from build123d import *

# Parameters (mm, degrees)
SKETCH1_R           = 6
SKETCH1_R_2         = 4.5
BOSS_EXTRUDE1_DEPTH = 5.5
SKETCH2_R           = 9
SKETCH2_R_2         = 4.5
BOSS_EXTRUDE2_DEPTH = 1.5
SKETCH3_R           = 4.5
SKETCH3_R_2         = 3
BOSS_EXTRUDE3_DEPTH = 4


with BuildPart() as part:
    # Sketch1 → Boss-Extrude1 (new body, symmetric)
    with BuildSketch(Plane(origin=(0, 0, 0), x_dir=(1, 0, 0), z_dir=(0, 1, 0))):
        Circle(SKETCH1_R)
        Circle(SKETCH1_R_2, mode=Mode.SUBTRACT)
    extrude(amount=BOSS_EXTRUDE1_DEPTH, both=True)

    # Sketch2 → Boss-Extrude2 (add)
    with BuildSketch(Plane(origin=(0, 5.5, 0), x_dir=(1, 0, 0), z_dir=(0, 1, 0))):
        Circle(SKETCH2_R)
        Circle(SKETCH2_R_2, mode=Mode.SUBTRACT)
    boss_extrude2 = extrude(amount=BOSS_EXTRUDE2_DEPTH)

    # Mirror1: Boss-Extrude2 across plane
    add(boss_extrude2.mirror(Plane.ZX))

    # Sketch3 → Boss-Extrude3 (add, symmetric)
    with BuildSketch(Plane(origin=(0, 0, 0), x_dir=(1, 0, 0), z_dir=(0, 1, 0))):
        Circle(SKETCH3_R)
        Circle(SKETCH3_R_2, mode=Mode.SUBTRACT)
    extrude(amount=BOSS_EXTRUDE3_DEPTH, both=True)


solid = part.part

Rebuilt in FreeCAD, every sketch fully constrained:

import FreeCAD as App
import Part
import Sketcher
from FreeCAD import Vector
Q = App.Units.Quantity

doc = App.newDocument("Part")
body = doc.addObject("PartDesign::Body", "Body")

sketch1 = body.newObject("Sketcher::SketchObject", "Sketch")
sketch1.AttachmentSupport = (doc.getObject("XZ_Plane"), [""])
sketch1.MapMode = "FlatFace"
sketch1.addGeometry(Part.Circle(Vector(0, 0, 0), Vector(0, 0, 1), 6), False)
sketch1.addGeometry(Part.Circle(Vector(0, 0, 0), Vector(0, 0, 1), 4.5), False)
sketch1.addConstraint(Sketcher.Constraint("Coincident", 0, 3, -1, 1))
sketch1.addConstraint(Sketcher.Constraint("Coincident", 1, 3, -1, 1))
sketch1.addConstraint(Sketcher.Constraint("Diameter", 0, Q("12 mm")))
sketch1.addConstraint(Sketcher.Constraint("Diameter", 1, Q("9 mm")))
pad1 = body.newObject("PartDesign::Pad", "Pad")
pad1.Profile = sketch1
pad1.Length = 11
pad1.Midplane = True

sketch2 = body.newObject("Sketcher::SketchObject", "Sketch001")
sketch2.AttachmentSupport = (doc.getObject("XZ_Plane"), [""])
sketch2.MapMode = "FlatFace"
sketch2.AttachmentOffset = App.Placement(Vector(0, 0, -5.5), App.Rotation())
sketch2.addGeometry(Part.Circle(Vector(0, 0, 0), Vector(0, 0, 1), 9), False)
sketch2.addGeometry(Part.Circle(Vector(0, 0, 0), Vector(0, 0, 1), 4.5), False)
sketch2.addConstraint(Sketcher.Constraint("Coincident", 0, 3, -1, 1))
sketch2.addConstraint(Sketcher.Constraint("Coincident", 1, 3, -1, 1))
sketch2.addConstraint(Sketcher.Constraint("Diameter", 0, Q("18 mm")))
sketch2.addConstraint(Sketcher.Constraint("Diameter", 1, Q("9 mm")))
pad2 = body.newObject("PartDesign::Pad", "Pad001")
pad2.Profile = sketch2
pad2.Length = 1.5
pad2.Reversed = True
doc.recompute()

mirrored = body.newObject("PartDesign::Mirrored", "Mirrored")
mirrored.Originals = [pad2]
mirrored.MirrorPlane = (doc.getObject("XZ_Plane"), [""])
body.Tip = mirrored

sketch3 = body.newObject("Sketcher::SketchObject", "Sketch002")
sketch3.AttachmentSupport = (doc.getObject("XZ_Plane"), [""])
sketch3.MapMode = "FlatFace"
sketch3.addGeometry(Part.Circle(Vector(0, 0, 0), Vector(0, 0, 1), 4.5), False)
sketch3.addGeometry(Part.Circle(Vector(0, 0, 0), Vector(0, 0, 1), 3), False)
sketch3.addConstraint(Sketcher.Constraint("Coincident", 0, 3, -1, 1))
sketch3.addConstraint(Sketcher.Constraint("Coincident", 1, 3, -1, 1))
sketch3.addConstraint(Sketcher.Constraint("Diameter", 0, Q("9 mm")))
sketch3.addConstraint(Sketcher.Constraint("Diameter", 1, Q("6 mm")))
pad3 = body.newObject("PartDesign::Pad", "Pad002")
pad3.Profile = sketch3
pad3.Length = 8
pad3.Midplane = True

doc.recompute()
